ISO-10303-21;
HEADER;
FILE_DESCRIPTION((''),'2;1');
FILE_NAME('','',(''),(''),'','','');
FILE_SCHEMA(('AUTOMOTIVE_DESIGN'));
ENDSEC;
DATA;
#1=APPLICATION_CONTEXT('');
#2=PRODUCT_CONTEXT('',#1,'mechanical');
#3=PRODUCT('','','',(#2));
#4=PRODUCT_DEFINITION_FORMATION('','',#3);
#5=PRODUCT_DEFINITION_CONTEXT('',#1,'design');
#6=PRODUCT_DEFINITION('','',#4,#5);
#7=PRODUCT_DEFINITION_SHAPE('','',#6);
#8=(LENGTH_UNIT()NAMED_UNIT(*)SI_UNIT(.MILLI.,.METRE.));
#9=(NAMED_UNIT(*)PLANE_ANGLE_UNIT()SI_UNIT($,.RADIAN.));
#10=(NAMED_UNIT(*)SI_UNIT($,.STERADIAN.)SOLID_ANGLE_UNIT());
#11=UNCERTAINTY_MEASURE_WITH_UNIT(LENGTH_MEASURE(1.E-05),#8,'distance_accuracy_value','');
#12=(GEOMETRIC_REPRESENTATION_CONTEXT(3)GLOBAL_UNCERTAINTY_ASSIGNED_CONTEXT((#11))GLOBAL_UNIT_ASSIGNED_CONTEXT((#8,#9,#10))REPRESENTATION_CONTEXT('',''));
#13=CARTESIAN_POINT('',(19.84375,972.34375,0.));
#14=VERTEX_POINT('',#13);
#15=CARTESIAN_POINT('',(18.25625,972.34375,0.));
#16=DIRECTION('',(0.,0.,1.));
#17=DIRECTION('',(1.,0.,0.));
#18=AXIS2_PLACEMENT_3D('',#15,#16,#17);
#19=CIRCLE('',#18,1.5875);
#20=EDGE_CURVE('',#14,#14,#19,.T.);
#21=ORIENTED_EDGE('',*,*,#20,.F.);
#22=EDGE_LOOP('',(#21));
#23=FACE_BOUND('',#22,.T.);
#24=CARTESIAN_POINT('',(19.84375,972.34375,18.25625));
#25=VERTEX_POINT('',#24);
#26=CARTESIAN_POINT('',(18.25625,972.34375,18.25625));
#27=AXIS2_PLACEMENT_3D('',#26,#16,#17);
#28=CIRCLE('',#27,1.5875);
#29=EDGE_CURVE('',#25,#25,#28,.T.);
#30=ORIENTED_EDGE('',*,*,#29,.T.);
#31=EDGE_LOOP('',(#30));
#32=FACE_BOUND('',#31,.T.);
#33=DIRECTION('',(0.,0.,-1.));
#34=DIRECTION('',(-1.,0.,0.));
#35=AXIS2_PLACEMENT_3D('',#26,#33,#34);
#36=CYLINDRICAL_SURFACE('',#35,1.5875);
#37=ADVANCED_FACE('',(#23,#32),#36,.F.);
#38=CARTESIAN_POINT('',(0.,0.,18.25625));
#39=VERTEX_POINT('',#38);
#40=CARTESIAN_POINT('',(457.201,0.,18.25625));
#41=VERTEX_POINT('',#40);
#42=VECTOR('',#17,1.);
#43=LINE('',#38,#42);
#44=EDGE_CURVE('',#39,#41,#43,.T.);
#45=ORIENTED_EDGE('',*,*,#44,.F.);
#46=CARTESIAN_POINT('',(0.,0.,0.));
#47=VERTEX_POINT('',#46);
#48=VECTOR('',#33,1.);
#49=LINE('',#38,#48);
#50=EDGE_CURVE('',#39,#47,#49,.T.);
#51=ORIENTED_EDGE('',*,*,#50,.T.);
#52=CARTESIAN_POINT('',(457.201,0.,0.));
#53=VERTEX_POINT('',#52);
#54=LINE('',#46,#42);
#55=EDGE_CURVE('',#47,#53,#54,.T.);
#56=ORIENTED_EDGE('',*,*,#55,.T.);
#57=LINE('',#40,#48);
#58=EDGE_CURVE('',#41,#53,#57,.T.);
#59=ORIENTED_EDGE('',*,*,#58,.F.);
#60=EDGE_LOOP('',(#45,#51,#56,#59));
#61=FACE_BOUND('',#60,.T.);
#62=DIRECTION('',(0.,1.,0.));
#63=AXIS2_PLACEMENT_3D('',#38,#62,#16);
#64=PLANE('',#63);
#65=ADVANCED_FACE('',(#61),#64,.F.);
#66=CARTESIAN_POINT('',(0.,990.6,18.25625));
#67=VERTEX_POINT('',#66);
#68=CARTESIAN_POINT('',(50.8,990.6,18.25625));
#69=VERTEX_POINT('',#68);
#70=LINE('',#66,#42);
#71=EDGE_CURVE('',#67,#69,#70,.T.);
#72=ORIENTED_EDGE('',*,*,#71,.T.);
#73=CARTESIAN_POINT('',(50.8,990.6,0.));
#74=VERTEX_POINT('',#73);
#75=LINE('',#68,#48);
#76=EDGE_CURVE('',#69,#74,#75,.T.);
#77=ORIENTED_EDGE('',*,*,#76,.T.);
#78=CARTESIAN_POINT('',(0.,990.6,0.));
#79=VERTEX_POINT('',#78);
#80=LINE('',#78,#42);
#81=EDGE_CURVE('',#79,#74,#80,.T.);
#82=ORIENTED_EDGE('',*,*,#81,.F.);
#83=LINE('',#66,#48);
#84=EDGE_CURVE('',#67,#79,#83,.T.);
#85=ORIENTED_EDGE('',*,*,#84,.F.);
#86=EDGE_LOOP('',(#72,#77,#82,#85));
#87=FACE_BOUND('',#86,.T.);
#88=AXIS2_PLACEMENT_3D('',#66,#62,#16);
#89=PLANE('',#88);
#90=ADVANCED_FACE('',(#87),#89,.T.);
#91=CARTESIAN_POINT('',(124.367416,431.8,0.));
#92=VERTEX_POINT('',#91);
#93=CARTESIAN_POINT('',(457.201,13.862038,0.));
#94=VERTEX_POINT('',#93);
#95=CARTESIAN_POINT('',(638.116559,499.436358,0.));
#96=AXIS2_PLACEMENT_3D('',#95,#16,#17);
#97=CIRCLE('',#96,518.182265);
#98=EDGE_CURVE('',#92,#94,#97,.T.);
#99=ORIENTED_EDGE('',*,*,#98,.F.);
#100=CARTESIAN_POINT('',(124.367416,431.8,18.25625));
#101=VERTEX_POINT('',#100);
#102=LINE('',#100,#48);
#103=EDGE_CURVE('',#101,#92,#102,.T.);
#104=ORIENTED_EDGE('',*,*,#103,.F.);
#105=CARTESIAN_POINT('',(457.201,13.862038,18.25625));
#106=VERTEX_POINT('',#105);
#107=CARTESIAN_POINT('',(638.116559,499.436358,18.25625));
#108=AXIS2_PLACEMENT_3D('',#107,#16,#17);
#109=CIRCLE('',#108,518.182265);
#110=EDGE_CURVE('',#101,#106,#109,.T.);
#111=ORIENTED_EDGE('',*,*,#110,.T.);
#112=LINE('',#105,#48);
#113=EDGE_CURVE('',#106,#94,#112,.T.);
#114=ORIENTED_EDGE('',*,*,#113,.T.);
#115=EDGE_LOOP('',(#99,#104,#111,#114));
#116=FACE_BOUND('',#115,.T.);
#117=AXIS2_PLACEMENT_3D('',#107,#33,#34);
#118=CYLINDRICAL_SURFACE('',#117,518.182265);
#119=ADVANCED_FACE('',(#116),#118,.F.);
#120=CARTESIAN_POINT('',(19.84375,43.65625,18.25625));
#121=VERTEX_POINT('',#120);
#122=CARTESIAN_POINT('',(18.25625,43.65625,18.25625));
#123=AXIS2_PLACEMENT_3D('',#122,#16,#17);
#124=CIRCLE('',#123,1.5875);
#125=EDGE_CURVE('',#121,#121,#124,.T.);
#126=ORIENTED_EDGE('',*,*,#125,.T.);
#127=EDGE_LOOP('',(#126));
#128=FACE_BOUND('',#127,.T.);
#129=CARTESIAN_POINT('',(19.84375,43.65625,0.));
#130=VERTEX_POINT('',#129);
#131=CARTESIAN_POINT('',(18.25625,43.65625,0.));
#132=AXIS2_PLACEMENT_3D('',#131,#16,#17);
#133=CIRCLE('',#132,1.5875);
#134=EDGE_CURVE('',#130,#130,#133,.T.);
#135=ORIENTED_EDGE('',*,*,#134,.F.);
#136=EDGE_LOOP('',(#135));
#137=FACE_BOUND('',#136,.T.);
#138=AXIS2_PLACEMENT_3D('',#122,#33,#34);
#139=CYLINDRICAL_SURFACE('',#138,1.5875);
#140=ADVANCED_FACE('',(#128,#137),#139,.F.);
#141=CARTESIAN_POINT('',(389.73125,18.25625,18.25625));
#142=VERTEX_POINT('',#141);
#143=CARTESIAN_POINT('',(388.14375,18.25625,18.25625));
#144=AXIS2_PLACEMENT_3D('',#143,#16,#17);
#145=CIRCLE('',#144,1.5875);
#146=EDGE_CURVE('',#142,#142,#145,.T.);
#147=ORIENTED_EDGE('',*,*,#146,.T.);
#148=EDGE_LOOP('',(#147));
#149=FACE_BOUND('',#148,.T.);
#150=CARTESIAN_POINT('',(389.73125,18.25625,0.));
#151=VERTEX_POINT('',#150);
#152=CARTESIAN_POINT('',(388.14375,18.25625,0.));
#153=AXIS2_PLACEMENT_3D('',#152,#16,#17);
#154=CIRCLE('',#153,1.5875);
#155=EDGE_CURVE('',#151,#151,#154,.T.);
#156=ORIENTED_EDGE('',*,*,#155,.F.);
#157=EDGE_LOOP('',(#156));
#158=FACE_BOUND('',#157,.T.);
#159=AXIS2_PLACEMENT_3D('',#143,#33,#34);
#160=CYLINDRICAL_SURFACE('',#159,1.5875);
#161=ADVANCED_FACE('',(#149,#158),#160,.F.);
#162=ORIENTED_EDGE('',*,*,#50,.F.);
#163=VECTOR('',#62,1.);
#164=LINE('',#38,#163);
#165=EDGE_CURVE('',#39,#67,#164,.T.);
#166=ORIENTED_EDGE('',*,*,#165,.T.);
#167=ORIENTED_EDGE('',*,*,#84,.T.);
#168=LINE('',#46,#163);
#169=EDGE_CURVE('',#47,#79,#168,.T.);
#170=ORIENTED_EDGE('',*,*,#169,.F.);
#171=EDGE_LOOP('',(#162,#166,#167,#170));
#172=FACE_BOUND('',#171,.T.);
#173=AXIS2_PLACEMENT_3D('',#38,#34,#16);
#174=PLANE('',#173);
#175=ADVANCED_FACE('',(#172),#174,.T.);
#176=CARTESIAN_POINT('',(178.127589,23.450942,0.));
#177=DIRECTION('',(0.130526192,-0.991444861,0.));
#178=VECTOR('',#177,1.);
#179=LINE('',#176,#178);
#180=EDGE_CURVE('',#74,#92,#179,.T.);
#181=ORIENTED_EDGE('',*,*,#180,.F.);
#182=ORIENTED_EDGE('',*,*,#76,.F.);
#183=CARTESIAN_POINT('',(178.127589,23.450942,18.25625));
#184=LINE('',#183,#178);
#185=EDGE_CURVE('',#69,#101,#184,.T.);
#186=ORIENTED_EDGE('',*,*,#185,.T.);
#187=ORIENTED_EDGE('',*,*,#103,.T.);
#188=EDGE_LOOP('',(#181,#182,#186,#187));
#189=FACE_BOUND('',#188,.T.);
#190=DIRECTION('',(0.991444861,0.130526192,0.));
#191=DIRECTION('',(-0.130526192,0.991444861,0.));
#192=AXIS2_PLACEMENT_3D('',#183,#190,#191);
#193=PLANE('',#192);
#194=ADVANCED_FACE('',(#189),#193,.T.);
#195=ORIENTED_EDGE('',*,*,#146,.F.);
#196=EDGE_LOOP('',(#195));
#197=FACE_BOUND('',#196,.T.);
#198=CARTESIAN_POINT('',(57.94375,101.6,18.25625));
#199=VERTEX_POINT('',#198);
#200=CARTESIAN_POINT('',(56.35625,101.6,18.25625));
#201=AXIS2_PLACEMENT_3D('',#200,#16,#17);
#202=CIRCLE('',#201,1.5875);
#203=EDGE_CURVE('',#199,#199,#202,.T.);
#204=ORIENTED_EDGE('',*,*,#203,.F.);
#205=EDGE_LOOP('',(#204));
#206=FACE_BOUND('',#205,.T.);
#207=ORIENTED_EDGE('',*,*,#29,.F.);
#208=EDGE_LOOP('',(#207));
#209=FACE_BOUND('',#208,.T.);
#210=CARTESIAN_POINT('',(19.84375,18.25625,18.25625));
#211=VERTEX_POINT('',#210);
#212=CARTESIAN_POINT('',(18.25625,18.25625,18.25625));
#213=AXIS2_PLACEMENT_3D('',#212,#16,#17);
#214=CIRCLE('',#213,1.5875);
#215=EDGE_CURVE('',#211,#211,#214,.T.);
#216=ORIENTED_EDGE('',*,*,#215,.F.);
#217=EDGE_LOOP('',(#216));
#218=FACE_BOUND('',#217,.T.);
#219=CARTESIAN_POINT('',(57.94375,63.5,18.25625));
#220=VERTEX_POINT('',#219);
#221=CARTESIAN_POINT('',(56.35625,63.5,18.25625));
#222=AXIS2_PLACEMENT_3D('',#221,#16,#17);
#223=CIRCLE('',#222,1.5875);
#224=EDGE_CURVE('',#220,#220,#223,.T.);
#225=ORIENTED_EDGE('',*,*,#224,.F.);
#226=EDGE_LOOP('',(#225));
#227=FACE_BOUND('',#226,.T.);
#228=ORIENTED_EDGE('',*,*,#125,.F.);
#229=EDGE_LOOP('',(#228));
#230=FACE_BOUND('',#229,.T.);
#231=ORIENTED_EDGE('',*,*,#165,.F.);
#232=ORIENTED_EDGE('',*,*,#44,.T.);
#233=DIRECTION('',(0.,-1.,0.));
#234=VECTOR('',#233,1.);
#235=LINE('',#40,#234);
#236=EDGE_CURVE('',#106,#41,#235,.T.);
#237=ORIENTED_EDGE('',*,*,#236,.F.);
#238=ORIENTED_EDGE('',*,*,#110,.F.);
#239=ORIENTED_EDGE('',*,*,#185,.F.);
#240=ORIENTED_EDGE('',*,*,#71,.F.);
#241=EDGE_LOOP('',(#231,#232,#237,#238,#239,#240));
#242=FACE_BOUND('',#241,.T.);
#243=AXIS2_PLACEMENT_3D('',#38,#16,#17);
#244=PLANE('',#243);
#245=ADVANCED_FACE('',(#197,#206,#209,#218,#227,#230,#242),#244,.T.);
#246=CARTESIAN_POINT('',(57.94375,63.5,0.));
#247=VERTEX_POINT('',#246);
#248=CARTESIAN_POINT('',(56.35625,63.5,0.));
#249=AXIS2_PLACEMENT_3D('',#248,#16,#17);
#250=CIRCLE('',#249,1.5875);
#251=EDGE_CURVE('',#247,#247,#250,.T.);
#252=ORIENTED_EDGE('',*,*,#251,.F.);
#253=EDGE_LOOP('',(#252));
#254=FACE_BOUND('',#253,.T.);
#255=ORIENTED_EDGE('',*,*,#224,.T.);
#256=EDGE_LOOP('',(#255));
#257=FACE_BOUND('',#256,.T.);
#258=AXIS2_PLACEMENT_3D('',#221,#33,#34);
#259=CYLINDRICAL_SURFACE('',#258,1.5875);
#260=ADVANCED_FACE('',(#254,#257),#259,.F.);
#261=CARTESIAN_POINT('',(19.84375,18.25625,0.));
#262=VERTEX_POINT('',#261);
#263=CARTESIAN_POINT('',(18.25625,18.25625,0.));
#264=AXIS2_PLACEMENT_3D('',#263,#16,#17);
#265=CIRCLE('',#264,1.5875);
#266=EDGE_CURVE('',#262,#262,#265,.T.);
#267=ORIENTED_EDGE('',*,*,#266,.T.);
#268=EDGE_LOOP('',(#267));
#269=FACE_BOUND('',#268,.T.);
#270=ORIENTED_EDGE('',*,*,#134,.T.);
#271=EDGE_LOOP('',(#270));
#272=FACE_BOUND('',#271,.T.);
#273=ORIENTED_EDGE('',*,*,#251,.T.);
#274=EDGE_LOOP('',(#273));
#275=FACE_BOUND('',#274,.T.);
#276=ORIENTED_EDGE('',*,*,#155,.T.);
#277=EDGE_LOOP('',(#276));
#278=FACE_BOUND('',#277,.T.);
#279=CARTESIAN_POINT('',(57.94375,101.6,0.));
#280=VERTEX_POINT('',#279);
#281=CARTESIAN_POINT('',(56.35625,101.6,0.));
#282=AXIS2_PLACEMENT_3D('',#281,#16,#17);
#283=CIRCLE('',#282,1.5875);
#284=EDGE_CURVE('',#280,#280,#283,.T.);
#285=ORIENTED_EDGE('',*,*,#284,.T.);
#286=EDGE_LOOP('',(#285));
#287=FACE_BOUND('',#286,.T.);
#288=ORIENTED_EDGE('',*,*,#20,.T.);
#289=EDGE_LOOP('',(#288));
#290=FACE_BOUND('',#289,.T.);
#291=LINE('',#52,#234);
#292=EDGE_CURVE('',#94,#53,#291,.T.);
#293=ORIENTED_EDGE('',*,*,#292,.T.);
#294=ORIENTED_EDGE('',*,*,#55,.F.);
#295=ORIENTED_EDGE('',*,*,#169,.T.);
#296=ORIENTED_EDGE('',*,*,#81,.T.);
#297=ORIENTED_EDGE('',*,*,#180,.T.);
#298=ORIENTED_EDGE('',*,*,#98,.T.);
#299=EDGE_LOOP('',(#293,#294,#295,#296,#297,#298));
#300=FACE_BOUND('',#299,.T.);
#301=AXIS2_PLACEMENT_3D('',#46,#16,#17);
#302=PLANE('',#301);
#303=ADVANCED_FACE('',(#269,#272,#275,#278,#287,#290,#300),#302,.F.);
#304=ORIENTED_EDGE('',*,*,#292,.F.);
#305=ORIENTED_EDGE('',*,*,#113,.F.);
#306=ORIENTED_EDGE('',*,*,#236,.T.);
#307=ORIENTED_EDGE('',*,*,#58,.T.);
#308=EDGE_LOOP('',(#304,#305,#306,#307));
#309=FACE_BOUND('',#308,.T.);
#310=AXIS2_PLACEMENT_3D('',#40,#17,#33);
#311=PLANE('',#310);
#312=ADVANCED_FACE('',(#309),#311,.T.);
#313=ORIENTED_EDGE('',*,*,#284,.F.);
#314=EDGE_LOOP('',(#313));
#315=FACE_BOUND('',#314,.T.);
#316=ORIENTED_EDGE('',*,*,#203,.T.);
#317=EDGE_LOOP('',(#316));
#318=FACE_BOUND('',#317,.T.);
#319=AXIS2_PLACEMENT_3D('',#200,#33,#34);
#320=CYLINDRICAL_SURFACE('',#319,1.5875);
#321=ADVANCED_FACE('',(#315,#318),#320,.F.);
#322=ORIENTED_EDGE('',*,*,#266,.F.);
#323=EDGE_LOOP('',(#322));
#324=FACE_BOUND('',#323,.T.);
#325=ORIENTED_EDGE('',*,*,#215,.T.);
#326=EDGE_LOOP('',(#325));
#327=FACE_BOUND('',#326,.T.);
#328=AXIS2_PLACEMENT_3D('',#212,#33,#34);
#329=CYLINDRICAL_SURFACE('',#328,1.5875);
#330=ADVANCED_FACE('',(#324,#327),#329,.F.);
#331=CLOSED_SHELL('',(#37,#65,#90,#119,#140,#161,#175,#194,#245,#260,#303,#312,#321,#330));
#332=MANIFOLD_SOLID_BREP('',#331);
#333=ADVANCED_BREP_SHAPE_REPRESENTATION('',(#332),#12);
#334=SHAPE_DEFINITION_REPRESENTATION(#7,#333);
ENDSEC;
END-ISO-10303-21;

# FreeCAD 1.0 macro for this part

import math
import FreeCAD as App
import Part
import Sketcher
from FreeCAD import Vector
Q = App.Units.Quantity

doc = App.newDocument("Part")
body = doc.addObject("PartDesign::Body", "Body")

# Sketch on XY plane
sketch1 = doc.addObject("Sketcher::SketchObject", "Sketch")
body.addObject(sketch1)
sketch1.AttachmentSupport = (doc.XY_Plane, [""])
sketch1.MapMode = "FlatFace"
sketch1.addGeometry(Part.LineSegment(Vector(0, 990.6, 0), Vector(0, 0, 0)), False)
sketch1.addGeometry(Part.LineSegment(Vector(0, 0, 0), Vector(457.201, 0, 0)), False)
sketch1.addGeometry(Part.LineSegment(Vector(457.201, 0, 0), Vector(457.201, 13.862038, 0)), False)
sketch1.addGeometry(Part.ArcOfCircle(Part.Circle(Vector(638.116559, 499.436358, 0), Vector(0, 0, 1), 518.182265), math.radians(-172.5), math.radians(-110.434416)), False)
sketch1.addGeometry(Part.LineSegment(Vector(124.367416, 431.8, 0), Vector(50.8, 990.6, 0)), False)
sketch1.addGeometry(Part.LineSegment(Vector(50.8, 990.6, 0), Vector(0, 990.6, 0)), False)
sketch1.addGeometry(Part.Circle(Vector(18.25625, 18.25625, 0), Vector(0, 0, 1), 1.5875), False)
sketch1.addGeometry(Part.Circle(Vector(18.25625, 43.65625, 0), Vector(0, 0, 1), 1.5875), False)
sketch1.addGeometry(Part.Circle(Vector(56.35625, 63.5, 0), Vector(0, 0, 1), 1.5875), False)
sketch1.addGeometry(Part.Circle(Vector(56.35625, 101.6, 0), Vector(0, 0, 1), 1.5875), False)
sketch1.addGeometry(Part.Circle(Vector(388.14375, 18.25625, 0), Vector(0, 0, 1), 1.5875), False)
sketch1.addGeometry(Part.Circle(Vector(18.25625, 972.34375, 0), Vector(0, 0, 1), 1.5875), False)
sketch1.addConstraint(Sketcher.Constraint("Coincident", 0, 2, 1, 1))
sketch1.addConstraint(Sketcher.Constraint("Coincident", 1, 2, 2, 1))
sketch1.addConstraint(Sketcher.Constraint("Coincident", 2, 2, 3, 2))
sketch1.addConstraint(Sketcher.Constraint("Tangent", 3, 1, 4, 1))
sketch1.addConstraint(Sketcher.Constraint("Coincident", 4, 2, 5, 1))
sketch1.addConstraint(Sketcher.Constraint("Coincident", 5, 2, 0, 1))
sketch1.addConstraint(Sketcher.Constraint("Vertical", 0))
sketch1.addConstraint(Sketcher.Constraint("Horizontal", 1))
sketch1.addConstraint(Sketcher.Constraint("Vertical", 2))
sketch1.addConstraint(Sketcher.Constraint("Horizontal", 5))
sketch1.addConstraint(Sketcher.Constraint("Coincident", 0, 2, -1, 1))
sketch1.addConstraint(Sketcher.Constraint("Equal", 6, 7))
sketch1.addConstraint(Sketcher.Constraint("Equal", 7, 8))
sketch1.addConstraint(Sketcher.Constraint("Equal", 8, 9))
sketch1.addConstraint(Sketcher.Constraint("Equal", 9, 10))
sketch1.addConstraint(Sketcher.Constraint("Equal", 10, 11))
sketch1.addConstraint(Sketcher.Constraint("Horizontal", 6, 3, 10, 3))
sketch1.addConstraint(Sketcher.Constraint("Vertical", 6, 3, 7, 3))
sketch1.addConstraint(Sketcher.Constraint("Vertical", 8, 3, 9, 3))
sketch1.addConstraint(Sketcher.Constraint("Vertical", 7, 3, 11, 3))
sketch1.addConstraint(Sketcher.Constraint("DistanceX", 5, 2, 5, 1, Q("2 in")))
sketch1.addConstraint(Sketcher.Constraint("DistanceY", 0, 2, 0, 1, Q("39 in")))
sketch1.addConstraint(Sketcher.Constraint("Diameter", 6, Q("0.125 in")))
sketch1.addConstraint(Sketcher.Constraint("DistanceY", -1, 1, 9, 3, Q("4 in")))
sketch1.addConstraint(Sketcher.Constraint("DistanceY", 6, 3, 7, 3, Q("1 in")))
sketch1.addConstraint(Sketcher.Constraint("DistanceY", -1, 1, 8, 3, Q("2.5 in")))
sketch1.addConstraint(Sketcher.Constraint("Angle", 4, Q("97.5 deg")))
sketch1.addConstraint(Sketcher.Constraint("DistanceX", 7, 3, 8, 3, Q("1.5 in")))
sketch1.addConstraint(Sketcher.Constraint("DistanceX", -1, 1, 6, 3, Q("0.71875 in")))
sketch1.addConstraint(Sketcher.Constraint("DistanceY", -1, 1, 6, 3, Q("0.71875 in")))
sketch1.addConstraint(Sketcher.Constraint("DistanceX", -1, 1, 10, 3, Q("15.28125 in")))
sketch1.addConstraint(Sketcher.Constraint("DistanceY", -1, 1, 11, 3, Q("38.28125 in")))
sketch1.addConstraint(Sketcher.Constraint("DistanceX", 1, 1, 1, 2, Q("457.201 mm")))
sketch1.addConstraint(Sketcher.Constraint("Radius", 3, Q("518.182265 mm")))
sketch1.addConstraint(Sketcher.Constraint("DistanceY", 2, 1, 2, 2, Q("13.862038 mm")))
pad1 = doc.addObject("PartDesign::Pad", "Pad")
body.addObject(pad1)
pad1.Profile = sketch1
pad1.Length = Q("0.71875 in")

doc.recompute()
